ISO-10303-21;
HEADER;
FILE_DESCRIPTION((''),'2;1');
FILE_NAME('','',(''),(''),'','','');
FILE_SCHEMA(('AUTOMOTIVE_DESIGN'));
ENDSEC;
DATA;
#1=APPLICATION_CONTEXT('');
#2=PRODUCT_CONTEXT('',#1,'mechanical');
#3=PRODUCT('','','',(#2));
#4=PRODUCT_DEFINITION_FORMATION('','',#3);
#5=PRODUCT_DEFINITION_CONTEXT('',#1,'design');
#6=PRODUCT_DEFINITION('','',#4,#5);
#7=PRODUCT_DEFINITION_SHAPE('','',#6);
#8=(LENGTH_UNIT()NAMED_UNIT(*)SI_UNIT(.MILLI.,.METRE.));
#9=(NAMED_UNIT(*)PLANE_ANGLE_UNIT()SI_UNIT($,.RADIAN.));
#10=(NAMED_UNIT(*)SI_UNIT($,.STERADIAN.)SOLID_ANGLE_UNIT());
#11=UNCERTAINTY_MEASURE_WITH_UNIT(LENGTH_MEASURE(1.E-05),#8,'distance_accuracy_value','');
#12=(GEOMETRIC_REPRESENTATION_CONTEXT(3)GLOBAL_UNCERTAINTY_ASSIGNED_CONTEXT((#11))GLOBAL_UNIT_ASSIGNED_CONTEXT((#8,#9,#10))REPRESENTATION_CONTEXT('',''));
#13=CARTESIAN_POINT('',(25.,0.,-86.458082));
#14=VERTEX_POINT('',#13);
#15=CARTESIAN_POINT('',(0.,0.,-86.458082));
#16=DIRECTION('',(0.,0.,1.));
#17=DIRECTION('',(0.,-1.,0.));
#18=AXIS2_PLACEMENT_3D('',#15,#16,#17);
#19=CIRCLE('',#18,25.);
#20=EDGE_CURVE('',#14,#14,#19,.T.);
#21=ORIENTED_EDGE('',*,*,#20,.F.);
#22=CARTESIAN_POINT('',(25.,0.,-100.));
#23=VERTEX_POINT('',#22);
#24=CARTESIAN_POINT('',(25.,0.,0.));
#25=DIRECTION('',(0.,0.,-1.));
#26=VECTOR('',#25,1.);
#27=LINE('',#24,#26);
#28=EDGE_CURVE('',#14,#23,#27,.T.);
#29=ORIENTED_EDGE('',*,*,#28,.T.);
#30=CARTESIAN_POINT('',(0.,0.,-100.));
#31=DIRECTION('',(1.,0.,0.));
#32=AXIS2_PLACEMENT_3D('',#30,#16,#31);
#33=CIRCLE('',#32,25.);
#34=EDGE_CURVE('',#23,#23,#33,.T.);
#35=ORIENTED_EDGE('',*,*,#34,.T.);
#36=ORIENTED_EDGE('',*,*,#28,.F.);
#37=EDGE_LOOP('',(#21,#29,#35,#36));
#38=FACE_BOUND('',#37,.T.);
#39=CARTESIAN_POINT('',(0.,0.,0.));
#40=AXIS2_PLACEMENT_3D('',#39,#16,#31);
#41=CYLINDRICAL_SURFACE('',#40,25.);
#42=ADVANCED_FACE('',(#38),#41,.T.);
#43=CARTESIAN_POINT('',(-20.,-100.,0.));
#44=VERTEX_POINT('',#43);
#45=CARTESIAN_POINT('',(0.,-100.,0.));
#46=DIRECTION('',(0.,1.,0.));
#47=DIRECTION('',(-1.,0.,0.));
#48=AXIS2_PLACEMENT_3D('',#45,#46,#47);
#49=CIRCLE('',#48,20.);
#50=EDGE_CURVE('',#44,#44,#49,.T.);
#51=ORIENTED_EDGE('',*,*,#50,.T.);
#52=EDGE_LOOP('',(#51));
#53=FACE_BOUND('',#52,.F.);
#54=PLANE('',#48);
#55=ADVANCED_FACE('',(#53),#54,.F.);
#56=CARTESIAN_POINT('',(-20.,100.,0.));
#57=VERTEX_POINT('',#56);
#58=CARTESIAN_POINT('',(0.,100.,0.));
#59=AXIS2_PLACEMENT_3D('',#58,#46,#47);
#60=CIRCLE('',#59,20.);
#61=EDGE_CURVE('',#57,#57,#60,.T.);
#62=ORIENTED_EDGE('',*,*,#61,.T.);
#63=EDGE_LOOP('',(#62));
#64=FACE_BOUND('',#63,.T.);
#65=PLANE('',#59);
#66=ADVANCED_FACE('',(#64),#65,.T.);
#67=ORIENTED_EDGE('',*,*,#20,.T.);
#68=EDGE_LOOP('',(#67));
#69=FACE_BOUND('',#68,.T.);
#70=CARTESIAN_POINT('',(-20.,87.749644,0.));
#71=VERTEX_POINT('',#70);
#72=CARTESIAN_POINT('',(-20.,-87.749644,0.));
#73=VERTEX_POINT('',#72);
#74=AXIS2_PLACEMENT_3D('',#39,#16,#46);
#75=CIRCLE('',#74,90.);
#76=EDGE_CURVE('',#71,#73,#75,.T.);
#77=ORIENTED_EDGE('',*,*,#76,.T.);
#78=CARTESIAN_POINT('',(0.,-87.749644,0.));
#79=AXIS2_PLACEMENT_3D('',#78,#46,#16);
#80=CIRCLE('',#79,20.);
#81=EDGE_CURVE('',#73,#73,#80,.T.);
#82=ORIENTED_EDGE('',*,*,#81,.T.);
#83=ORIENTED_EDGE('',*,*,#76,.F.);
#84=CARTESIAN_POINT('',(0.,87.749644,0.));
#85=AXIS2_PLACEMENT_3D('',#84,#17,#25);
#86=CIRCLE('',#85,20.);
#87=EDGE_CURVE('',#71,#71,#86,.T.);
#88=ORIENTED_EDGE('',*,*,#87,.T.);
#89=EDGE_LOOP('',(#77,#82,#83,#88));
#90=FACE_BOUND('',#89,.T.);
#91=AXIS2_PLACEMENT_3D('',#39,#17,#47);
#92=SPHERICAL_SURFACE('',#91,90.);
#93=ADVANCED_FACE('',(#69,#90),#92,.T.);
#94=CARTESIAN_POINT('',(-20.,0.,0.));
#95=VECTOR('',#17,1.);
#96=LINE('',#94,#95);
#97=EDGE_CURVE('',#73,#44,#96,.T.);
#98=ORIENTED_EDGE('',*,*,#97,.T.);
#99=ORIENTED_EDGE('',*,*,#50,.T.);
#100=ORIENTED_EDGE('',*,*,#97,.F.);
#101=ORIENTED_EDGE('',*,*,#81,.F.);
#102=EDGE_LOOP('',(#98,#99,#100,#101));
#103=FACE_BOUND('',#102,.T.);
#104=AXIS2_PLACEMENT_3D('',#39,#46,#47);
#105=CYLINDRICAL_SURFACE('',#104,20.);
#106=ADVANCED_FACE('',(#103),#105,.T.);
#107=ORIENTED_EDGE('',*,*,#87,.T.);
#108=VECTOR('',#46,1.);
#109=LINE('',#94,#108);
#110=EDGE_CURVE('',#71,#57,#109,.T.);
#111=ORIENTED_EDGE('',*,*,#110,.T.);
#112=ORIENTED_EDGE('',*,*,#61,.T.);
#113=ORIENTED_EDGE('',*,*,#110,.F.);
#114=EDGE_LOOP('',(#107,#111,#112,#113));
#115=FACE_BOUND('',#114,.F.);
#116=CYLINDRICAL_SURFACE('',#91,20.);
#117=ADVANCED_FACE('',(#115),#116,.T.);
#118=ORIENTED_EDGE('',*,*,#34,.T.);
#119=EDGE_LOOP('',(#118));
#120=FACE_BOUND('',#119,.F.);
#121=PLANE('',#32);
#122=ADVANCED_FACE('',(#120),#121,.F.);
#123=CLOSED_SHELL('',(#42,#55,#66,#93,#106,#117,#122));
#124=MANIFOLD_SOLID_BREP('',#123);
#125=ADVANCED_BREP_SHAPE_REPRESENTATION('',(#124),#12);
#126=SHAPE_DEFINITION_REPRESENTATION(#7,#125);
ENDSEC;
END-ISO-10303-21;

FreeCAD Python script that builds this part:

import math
import FreeCAD as App
import Part
import Sketcher

V = App.Vector
Q = App.Units.Quantity

doc = App.newDocument("Part")
body = doc.addObject("PartDesign::Body", "Body")

sketch1 = doc.addObject("Sketcher::SketchObject", "Sketch")
body.addObject(sketch1)
sketch1.AttachmentSupport = (doc.XY_Plane, [""])
sketch1.MapMode = "FlatFace"
sketch1.addGeometry([
    Part.LineSegment(V(0, -90, 0), V(0, 90, 0)),
    Part.ArcOfCircle(Part.Circle(V(0, 0, 0), V(0, 0, 1), 90), math.radians(90), math.radians(270)),
], False)
sketch1.addConstraint([
    Sketcher.Constraint("Coincident", 0, 1, 1, 2),
    Sketcher.Constraint("Coincident", 1, 1, 0, 2),
    Sketcher.Constraint("Vertical", 0),
    Sketcher.Constraint("Coincident", 1, 3, -1, 1),
    Sketcher.Constraint("PointOnObject", 0, 1, -2),
    Sketcher.Constraint("Radius", 1, Q("90 mm")),
])
revolution = doc.addObject("PartDesign::Revolution", "Revolution")
body.addObject(revolution)
revolution.Profile = sketch1
revolution.ReferenceAxis = (sketch1, ["V_Axis"])
revolution.Angle = 360

sketch2 = doc.addObject("Sketcher::SketchObject", "Sketch001")
body.addObject(sketch2)
sketch2.AttachmentSupport = (doc.XZ_Plane, [""])
sketch2.MapMode = "FlatFace"
sketch2.addGeometry(Part.Circle(V(0, 0, 0), V(0, 0, 1), 20), False)
sketch2.addConstraint([
    Sketcher.Constraint("Coincident", 0, 3, -1, 1),
    Sketcher.Constraint("Diameter", 0, Q("40 mm")),
])
pad1 = doc.addObject("PartDesign::Pad", "Pad")
body.addObject(pad1)
pad1.Profile = sketch2
pad1.Length = 200
pad1.Midplane = True

sketch3 = doc.addObject("Sketcher::SketchObject", "Sketch002")
body.addObject(sketch3)
sketch3.AttachmentSupport = (doc.XY_Plane, [""])
sketch3.MapMode = "FlatFace"
sketch3.addGeometry(Part.Circle(V(0, 0, 0), V(0, 0, 1), 25), False)
sketch3.addConstraint([
    Sketcher.Constraint("Coincident", 0, 3, -1, 1),
    Sketcher.Constraint("Diameter", 0, Q("50 mm")),
])
pad2 = doc.addObject("PartDesign::Pad", "Pad001")
body.addObject(pad2)
pad2.Profile = sketch3
pad2.Length = 100
pad2.Reversed = True

doc.recompute()
